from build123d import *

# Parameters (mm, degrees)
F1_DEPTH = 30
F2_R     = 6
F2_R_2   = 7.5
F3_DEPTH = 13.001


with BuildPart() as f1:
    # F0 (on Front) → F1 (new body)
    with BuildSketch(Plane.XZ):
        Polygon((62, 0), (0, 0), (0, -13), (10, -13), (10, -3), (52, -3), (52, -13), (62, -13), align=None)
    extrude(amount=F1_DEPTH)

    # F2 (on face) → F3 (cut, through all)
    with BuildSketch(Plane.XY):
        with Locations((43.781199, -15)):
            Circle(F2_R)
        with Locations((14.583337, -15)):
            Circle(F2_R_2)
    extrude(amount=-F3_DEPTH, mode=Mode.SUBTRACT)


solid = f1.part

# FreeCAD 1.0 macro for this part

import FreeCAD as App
import Part
import Sketcher
from FreeCAD import Vector
Q = App.Units.Quantity

doc = App.newDocument("Part")
body = doc.addObject("PartDesign::Body", "Body")

sketch1 = body.newObject("Sketcher::SketchObject", "Sketch")
sketch1.AttachmentSupport = (doc.getObject("XZ_Plane"), [""])
sketch1.MapMode = "FlatFace"
sketch1.addGeometry([
    Part.LineSegment(Vector(62, 0, 0), Vector(0, 0, 0)),
    Part.LineSegment(Vector(0, 0, 0), Vector(0, -13, 0)),
    Part.LineSegment(Vector(0, -13, 0), Vector(10, -13, 0)),
    Part.LineSegment(Vector(10, -13, 0), Vector(10, -3, 0)),
    Part.LineSegment(Vector(10, -3, 0), Vector(52, -3, 0)),
    Part.LineSegment(Vector(52, -3, 0), Vector(52, -13, 0)),
    Part.LineSegment(Vector(52, -13, 0), Vector(62, -13, 0)),
    Part.LineSegment(Vector(62, -13, 0), Vector(62, 0, 0)),
], False)
sketch1.addConstraint([
    Sketcher.Constraint("Coincident", 0, 2, 1, 1),
    Sketcher.Constraint("Coincident", 1, 2, 2, 1),
    Sketcher.Constraint("Coincident", 2, 2, 3, 1),
    Sketcher.Constraint("Coincident", 3, 2, 4, 1),
    Sketcher.Constraint("Coincident", 4, 2, 5, 1),
    Sketcher.Constraint("Coincident", 5, 2, 6, 1),
    Sketcher.Constraint("Coincident", 6, 2, 7, 1),
    Sketcher.Constraint("Coincident", 7, 2, 0, 1),
    Sketcher.Constraint("Horizontal", 0),
    Sketcher.Constraint("Vertical", 1),
    Sketcher.Constraint("Horizontal", 2),
    Sketcher.Constraint("Vertical", 3),
    Sketcher.Constraint("Horizontal", 4),
    Sketcher.Constraint("Vertical", 5),
    Sketcher.Constraint("Horizontal", 6),
    Sketcher.Constraint("Vertical", 7),
    Sketcher.Constraint("Coincident", 0, 2, -1, 1),
    Sketcher.Constraint("Horizontal", 2, 2, 5, 2),
    Sketcher.Constraint("Equal", 2, 6),
    Sketcher.Constraint("Equal", 6, 3),
    Sketcher.Constraint("DistanceX", 0, 2, 0, 1, Q("62 mm")),
    Sketcher.Constraint("DistanceX", 2, 1, 2, 2, Q("10 mm")),
    Sketcher.Constraint("DistanceY", 1, 2, 1, 1, Q("13 mm")),
])
pad1 = body.newObject("PartDesign::Pad", "Pad")
pad1.Profile = sketch1
pad1.Length = 30

sketch2 = body.newObject("Sketcher::SketchObject", "Sketch001")
sketch2.AttachmentSupport = (doc.getObject("XY_Plane"), [""])
sketch2.MapMode = "FlatFace"
sketch2.addGeometry([
    Part.Circle(Vector(44, -15, 0), Vector(0, 0, 1), 6),
    Part.Circle(Vector(15, -15, 0), Vector(0, 0, 1), 8),
], False)
sketch2.addConstraint([
    Sketcher.Constraint("Horizontal", 0, 3, 1, 3),
    Sketcher.Constraint("Diameter", 0, Q("12 mm")),
    Sketcher.Constraint("Diameter", 1, Q("15 mm")),
    Sketcher.Constraint("DistanceY", 0, 3, -1, 1, Q("15 mm")),
    Sketcher.Constraint("DistanceX", -1, 1, 0, 3, Q("43.781199 mm")),
    Sketcher.Constraint("DistanceX", -1, 1, 1, 3, Q("14.583337 mm")),
])
pocket1 = body.newObject("PartDesign::Pocket", "Pocket")
pocket1.Profile = sketch2
pocket1.Type = "ThroughAll"

doc.recompute()
